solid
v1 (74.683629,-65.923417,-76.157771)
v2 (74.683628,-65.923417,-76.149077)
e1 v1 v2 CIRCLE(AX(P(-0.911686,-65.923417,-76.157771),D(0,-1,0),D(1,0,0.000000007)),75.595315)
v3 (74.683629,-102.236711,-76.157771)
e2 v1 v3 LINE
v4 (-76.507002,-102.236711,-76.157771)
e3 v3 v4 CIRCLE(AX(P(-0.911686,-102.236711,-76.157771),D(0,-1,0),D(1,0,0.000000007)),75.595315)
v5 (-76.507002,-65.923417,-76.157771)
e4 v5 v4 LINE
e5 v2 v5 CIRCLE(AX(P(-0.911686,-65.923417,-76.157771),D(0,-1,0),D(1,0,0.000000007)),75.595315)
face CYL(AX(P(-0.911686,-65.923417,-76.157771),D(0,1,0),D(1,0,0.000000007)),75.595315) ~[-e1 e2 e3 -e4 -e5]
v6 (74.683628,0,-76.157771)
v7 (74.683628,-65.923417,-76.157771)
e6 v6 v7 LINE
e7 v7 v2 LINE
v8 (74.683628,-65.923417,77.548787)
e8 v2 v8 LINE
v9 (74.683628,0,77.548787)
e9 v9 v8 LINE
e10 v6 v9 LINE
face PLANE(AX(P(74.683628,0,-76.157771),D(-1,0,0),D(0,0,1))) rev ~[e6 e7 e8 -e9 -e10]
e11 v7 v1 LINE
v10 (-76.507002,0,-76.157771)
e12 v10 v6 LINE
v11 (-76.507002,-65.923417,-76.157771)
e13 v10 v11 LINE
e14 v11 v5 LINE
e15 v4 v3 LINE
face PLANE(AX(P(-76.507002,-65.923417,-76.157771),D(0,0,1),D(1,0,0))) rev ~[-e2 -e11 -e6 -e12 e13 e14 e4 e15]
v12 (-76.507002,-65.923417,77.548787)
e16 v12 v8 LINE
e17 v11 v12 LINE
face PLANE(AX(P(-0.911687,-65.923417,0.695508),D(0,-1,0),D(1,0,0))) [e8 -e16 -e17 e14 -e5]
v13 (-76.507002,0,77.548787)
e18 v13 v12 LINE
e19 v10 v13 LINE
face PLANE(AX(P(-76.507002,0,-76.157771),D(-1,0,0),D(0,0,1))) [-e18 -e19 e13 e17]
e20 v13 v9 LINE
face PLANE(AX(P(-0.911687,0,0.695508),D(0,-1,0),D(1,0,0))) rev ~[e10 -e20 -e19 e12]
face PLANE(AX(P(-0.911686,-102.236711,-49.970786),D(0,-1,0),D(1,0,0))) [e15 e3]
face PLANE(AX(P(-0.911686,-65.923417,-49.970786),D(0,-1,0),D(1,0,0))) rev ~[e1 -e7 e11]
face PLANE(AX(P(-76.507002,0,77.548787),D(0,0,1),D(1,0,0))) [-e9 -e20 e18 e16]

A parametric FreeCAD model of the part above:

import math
import FreeCAD as App
import Part
import Sketcher


def add_polygon(sketch, points):
    """Adds a closed chain of lines whose ends are joined by coincident constraints."""
    first, n = sketch.GeometryCount, len(points)
    for a, b in zip(points, points[1:] + points[:1]):
        sketch.addGeometry(Part.LineSegment(App.Vector(*a, 0), App.Vector(*b, 0)), False)
    for i in range(n):
        sketch.addConstraint(Sketcher.Constraint("Coincident", first + i, 2, first + (i + 1) % n, 1))

doc = App.newDocument("Part")
body = doc.addObject("PartDesign::Body", "Body")

# Sketch on XZ plane
sketch1 = doc.addObject("Sketcher::SketchObject", "Sketch")
body.addObject(sketch1)
sketch1.AttachmentSupport = (doc.XZ_Plane, [""])
sketch1.MapMode = "FlatFace"
add_polygon(sketch1, [(-77, 78), (-77, -76), (75, -76), (75, 78)])  # lines 0-3
sketch1.addConstraint(Sketcher.Constraint("Vertical", 0))
sketch1.addConstraint(Sketcher.Constraint("Horizontal", 1))
sketch1.addConstraint(Sketcher.Constraint("Vertical", 2))
sketch1.addConstraint(Sketcher.Constraint("Horizontal", 3))
sketch1.addConstraint(Sketcher.Constraint("DistanceX", 1, 1, 1, 2, 151.190631))
sketch1.addConstraint(Sketcher.Constraint("DistanceY", 0, 2, 0, 1, 153.706558))
sketch1.addConstraint(Sketcher.Constraint("DistanceY", 0, 2, -1, 1, 76.157771))
sketch1.addConstraint(Sketcher.Constraint("DistanceX", -1, 1, 1, 2, 74.683628))
pad1 = doc.addObject("PartDesign::Pad", "Pad")
body.addObject(pad1)
pad1.Profile = sketch1
pad1.Length = 65.923417

# Sketch on XZ plane
sketch2 = doc.addObject("Sketcher::SketchObject", "Sketch001")
body.addObject(sketch2)
sketch2.AttachmentSupport = (doc.XZ_Plane, [""])
sketch2.MapMode = "FlatFace"
sketch2.AttachmentOffset = App.Placement(App.Vector(0, 0, 65.923417), App.Rotation())
sketch2.addGeometry(Part.LineSegment(App.Vector(-77, -76, 0), App.Vector(75, -76, 0)), False)
sketch2.addGeometry(Part.ArcOfCircle(Part.Circle(App.Vector(-1, -76, 0), App.Vector(0, 0, 1), 76), math.radians(0), math.radians(180)), False)
sketch2.addConstraint(Sketcher.Constraint("Coincident", 0, 1, 1, 2))
sketch2.addConstraint(Sketcher.Constraint("Coincident", 1, 1, 0, 2))
sketch2.addConstraint(Sketcher.Constraint("Horizontal", 0))
sketch2.addConstraint(Sketcher.Constraint("Horizontal", 1, 3, 0, 1))
sketch2.addConstraint(Sketcher.Constraint("DistanceX", 0, 1, -1, 1, 76.507002))
sketch2.addConstraint(Sketcher.Constraint("Radius", 1, 75.595315))
sketch2.addConstraint(Sketcher.Constraint("DistanceY", 1, 3, -1, 1, 76.157771))
pad2 = doc.addObject("PartDesign::Pad", "Pad001")
body.addObject(pad2)
pad2.Profile = sketch2
pad2.Length = 36.313294

doc.recompute()
